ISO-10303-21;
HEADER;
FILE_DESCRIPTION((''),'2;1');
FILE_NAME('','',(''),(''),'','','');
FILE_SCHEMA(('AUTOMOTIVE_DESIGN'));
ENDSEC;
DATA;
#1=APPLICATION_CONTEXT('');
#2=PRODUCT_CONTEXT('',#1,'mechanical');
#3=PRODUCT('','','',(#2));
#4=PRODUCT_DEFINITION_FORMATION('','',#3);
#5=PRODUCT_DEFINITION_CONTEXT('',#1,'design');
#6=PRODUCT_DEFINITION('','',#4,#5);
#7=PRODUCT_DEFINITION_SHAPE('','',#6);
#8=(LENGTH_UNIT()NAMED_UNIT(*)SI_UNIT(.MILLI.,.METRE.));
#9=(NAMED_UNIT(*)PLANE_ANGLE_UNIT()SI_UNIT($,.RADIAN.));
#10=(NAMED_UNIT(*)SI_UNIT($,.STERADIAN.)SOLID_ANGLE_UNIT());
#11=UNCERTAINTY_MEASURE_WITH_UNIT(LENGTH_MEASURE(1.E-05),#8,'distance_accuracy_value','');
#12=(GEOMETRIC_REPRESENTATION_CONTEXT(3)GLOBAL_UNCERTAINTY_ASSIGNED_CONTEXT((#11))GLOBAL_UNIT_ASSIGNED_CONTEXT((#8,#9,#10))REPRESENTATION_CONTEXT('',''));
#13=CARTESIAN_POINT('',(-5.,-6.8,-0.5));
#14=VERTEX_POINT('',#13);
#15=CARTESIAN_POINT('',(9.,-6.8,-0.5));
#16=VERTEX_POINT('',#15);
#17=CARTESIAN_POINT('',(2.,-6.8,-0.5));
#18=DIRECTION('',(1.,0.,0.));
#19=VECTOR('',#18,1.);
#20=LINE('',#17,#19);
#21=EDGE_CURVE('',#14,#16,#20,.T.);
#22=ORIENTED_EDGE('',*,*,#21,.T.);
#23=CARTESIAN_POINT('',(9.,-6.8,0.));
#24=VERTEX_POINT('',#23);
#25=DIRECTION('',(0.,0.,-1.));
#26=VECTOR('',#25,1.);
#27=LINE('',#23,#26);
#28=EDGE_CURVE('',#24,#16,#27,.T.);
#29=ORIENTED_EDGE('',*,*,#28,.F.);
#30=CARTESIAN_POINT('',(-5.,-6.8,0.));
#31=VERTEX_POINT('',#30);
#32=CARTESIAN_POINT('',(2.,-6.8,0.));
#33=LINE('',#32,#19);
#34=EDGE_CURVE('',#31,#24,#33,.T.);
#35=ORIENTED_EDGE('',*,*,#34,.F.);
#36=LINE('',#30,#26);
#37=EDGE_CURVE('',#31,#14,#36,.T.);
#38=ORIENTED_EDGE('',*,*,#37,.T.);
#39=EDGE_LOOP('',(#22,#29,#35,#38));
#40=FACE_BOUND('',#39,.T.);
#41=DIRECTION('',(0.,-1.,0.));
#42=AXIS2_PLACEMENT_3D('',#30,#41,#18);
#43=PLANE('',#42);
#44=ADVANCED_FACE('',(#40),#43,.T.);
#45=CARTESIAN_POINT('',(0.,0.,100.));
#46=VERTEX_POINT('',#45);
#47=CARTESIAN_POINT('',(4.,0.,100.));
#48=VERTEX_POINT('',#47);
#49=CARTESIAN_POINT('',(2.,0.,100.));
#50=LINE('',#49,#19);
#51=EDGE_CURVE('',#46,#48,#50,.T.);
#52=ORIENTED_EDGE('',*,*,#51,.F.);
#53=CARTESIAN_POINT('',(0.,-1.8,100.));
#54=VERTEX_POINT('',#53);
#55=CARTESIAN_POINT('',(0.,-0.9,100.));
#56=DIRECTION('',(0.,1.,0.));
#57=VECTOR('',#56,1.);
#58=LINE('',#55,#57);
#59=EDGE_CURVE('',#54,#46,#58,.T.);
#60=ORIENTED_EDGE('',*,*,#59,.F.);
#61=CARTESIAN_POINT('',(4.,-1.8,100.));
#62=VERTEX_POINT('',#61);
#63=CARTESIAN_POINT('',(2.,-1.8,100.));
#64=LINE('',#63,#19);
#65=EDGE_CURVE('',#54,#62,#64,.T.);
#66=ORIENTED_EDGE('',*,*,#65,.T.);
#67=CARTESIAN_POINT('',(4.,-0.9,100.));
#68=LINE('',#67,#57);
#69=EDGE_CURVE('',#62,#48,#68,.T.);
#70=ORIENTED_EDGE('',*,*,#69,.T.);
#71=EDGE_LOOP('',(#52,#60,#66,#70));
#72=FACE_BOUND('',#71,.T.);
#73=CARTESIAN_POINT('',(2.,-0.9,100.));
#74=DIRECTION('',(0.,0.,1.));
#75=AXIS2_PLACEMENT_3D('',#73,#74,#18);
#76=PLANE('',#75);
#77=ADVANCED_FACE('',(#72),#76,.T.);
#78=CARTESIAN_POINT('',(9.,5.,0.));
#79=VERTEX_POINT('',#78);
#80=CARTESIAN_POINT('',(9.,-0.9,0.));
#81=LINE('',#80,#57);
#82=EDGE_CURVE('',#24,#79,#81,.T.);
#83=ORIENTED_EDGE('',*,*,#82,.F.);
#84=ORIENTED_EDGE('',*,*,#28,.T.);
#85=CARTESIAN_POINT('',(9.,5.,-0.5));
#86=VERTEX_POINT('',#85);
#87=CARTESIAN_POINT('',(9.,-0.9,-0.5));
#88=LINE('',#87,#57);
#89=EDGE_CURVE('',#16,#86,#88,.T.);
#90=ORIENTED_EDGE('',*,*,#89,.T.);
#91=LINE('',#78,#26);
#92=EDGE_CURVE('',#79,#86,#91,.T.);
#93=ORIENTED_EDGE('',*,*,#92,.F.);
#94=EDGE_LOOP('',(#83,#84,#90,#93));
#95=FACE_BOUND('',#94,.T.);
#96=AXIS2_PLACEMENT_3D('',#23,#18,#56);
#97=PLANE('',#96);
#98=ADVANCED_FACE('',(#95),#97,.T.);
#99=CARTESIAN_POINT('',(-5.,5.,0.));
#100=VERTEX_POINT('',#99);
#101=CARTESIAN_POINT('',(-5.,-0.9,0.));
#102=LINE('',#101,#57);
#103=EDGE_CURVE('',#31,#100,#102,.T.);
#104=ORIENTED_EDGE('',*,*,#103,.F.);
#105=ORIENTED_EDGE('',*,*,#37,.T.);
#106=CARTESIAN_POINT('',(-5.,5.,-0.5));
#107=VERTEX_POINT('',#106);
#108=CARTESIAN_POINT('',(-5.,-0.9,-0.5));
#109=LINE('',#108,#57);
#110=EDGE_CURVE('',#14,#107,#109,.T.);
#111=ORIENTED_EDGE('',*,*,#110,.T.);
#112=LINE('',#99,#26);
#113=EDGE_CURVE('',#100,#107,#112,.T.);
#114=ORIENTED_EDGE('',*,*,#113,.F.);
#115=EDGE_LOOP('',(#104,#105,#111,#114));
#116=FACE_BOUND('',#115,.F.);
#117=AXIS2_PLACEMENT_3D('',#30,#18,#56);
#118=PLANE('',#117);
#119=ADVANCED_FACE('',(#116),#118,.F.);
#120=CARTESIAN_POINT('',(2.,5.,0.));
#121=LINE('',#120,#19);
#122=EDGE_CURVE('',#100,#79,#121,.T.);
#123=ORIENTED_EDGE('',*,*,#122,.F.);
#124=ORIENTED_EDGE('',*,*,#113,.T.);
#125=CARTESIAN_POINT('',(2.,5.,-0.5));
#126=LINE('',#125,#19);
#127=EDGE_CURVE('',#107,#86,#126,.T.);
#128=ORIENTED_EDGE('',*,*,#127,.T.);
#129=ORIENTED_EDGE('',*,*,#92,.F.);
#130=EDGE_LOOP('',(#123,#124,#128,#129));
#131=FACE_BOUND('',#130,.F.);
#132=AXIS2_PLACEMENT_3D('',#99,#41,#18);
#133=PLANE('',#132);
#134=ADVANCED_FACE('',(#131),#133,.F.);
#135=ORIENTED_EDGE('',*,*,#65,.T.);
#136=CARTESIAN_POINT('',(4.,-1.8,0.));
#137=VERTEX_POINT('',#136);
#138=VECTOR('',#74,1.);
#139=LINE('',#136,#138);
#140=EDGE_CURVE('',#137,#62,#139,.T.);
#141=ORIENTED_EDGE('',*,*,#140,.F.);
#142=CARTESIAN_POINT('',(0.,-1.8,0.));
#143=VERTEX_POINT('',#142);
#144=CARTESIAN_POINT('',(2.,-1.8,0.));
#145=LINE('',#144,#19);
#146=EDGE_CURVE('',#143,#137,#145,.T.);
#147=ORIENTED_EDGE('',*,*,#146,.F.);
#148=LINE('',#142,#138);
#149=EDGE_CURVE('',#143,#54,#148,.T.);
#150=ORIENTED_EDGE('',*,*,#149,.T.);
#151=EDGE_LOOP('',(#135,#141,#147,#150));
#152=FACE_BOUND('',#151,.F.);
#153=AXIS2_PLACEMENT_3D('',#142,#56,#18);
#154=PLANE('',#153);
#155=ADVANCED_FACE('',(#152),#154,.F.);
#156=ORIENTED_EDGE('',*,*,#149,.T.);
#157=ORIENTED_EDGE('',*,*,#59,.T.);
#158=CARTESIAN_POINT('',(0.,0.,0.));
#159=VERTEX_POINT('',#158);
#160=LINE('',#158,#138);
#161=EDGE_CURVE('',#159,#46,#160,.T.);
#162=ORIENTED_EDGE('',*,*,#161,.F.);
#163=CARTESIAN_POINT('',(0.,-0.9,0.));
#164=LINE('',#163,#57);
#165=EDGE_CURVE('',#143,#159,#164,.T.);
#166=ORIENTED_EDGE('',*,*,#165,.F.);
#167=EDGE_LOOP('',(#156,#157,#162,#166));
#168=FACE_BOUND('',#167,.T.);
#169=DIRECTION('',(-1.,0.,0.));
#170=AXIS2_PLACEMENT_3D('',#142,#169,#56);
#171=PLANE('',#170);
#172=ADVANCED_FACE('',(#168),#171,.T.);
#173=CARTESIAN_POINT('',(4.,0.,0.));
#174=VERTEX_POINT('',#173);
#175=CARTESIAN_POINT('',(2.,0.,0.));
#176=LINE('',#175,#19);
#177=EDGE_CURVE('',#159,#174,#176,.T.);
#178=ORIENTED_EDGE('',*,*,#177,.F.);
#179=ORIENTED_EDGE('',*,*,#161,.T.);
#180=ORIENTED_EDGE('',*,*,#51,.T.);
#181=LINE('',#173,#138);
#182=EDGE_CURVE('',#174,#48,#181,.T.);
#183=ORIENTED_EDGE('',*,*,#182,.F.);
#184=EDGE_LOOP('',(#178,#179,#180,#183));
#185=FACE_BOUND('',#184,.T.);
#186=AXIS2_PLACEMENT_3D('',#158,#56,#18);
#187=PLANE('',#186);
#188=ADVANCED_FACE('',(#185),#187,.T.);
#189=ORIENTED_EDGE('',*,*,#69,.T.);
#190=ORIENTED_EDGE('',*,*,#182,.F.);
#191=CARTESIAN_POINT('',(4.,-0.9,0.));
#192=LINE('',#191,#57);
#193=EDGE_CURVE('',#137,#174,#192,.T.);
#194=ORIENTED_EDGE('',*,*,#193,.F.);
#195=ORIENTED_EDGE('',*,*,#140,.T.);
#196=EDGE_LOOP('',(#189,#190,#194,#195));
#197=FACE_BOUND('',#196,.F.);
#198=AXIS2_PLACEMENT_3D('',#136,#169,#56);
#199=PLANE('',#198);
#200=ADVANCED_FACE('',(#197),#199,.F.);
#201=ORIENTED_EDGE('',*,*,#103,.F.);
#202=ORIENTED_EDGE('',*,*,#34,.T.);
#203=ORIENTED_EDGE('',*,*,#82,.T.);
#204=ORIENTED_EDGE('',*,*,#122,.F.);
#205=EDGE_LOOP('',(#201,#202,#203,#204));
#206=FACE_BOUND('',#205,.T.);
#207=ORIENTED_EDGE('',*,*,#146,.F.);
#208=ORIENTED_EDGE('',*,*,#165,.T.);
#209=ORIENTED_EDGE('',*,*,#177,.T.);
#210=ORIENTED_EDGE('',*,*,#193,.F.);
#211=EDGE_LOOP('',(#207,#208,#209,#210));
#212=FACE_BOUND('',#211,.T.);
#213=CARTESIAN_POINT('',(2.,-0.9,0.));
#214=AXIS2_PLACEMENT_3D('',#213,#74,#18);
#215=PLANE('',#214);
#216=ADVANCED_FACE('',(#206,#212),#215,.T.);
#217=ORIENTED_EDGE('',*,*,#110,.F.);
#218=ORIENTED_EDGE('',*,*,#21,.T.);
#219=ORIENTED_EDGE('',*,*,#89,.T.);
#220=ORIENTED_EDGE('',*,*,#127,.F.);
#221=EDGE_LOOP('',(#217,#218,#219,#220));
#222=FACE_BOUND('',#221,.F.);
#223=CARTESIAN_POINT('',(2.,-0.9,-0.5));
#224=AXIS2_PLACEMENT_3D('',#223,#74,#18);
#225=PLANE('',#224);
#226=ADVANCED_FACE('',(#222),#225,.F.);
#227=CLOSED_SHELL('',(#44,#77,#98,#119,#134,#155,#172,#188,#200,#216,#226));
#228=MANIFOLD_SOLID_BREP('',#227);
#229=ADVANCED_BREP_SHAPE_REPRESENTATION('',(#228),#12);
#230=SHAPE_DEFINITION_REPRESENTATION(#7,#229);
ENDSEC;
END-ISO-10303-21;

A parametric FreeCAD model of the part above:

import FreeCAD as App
import Part
import Sketcher
from FreeCAD import Vector
Q = App.Units.Quantity

doc = App.newDocument("Part")
body = doc.addObject("PartDesign::Body", "Body")

sketch1 = body.newObject("Sketcher::SketchObject", "Sketch")
sketch1.AttachmentSupport = (doc.getObject("XY_Plane"), [""])
sketch1.MapMode = "FlatFace"
sketch1.addGeometry(Part.LineSegment(Vector(0, 0, 0), Vector(0, -1.8, 0)), False)
sketch1.addGeometry(Part.LineSegment(Vector(0, -1.8, 0), Vector(4, -1.8, 0)), False)
sketch1.addGeometry(Part.LineSegment(Vector(4, -1.8, 0), Vector(4, 0, 0)), False)
sketch1.addGeometry(Part.LineSegment(Vector(4, 0, 0), Vector(0, 0, 0)), False)
sketch1.addConstraint(Sketcher.Constraint("Coincident", 0, 2, 1, 1))
sketch1.addConstraint(Sketcher.Constraint("Coincident", 1, 2, 2, 1))
sketch1.addConstraint(Sketcher.Constraint("Coincident", 2, 2, 3, 1))
sketch1.addConstraint(Sketcher.Constraint("Coincident", 3, 2, 0, 1))
sketch1.addConstraint(Sketcher.Constraint("Vertical", 0))
sketch1.addConstraint(Sketcher.Constraint("Horizontal", 1))
sketch1.addConstraint(Sketcher.Constraint("Vertical", 2))
sketch1.addConstraint(Sketcher.Constraint("Horizontal", 3))
sketch1.addConstraint(Sketcher.Constraint("Coincident", 3, 2, -1, 1))
sketch1.addConstraint(Sketcher.Constraint("DistanceX", 1, 1, 1, 2, Q("4 mm")))
sketch1.addConstraint(Sketcher.Constraint("DistanceY", 0, 2, 0, 1, Q("1.8 mm")))
pad1 = body.newObject("PartDesign::Pad", "Pad")
pad1.Profile = sketch1
pad1.Length = 100

sketch2 = body.newObject("Sketcher::SketchObject", "Sketch001")
sketch2.AttachmentSupport = (doc.getObject("XY_Plane"), [""])
sketch2.MapMode = "FlatFace"
sketch2.addGeometry(Part.LineSegment(Vector(-5, 5, 0), Vector(-5, -7, 0)), False)
sketch2.addGeometry(Part.LineSegment(Vector(-5, -7, 0), Vector(9, -7, 0)), False)
sketch2.addGeometry(Part.LineSegment(Vector(9, -7, 0), Vector(9, 5, 0)), False)
sketch2.addGeometry(Part.LineSegment(Vector(9, 5, 0), Vector(-5, 5, 0)), False)
sketch2.addConstraint(Sketcher.Constraint("Coincident", 0, 2, 1, 1))
sketch2.addConstraint(Sketcher.Constraint("Coincident", 1, 2, 2, 1))
sketch2.addConstraint(Sketcher.Constraint("Coincident", 2, 2, 3, 1))
sketch2.addConstraint(Sketcher.Constraint("Coincident", 3, 2, 0, 1))
sketch2.addConstraint(Sketcher.Constraint("Vertical", 0))
sketch2.addConstraint(Sketcher.Constraint("Horizontal", 1))
sketch2.addConstraint(Sketcher.Constraint("Vertical", 2))
sketch2.addConstraint(Sketcher.Constraint("Horizontal", 3))
sketch2.addConstraint(Sketcher.Constraint("DistanceX", 1, 1, 1, 2, Q("14 mm")))
sketch2.addConstraint(Sketcher.Constraint("DistanceY", 0, 2, 0, 1, Q("11.8 mm")))
sketch2.addConstraint(Sketcher.Constraint("DistanceX", 0, 2, -1, 1, Q("5 mm")))
sketch2.addConstraint(Sketcher.Constraint("DistanceY", -1, 1, 2, 2, Q("5 mm")))
pad2 = body.newObject("PartDesign::Pad", "Pad001")
pad2.Profile = sketch2
pad2.Length = 0.5
pad2.Reversed = True

doc.recompute()
